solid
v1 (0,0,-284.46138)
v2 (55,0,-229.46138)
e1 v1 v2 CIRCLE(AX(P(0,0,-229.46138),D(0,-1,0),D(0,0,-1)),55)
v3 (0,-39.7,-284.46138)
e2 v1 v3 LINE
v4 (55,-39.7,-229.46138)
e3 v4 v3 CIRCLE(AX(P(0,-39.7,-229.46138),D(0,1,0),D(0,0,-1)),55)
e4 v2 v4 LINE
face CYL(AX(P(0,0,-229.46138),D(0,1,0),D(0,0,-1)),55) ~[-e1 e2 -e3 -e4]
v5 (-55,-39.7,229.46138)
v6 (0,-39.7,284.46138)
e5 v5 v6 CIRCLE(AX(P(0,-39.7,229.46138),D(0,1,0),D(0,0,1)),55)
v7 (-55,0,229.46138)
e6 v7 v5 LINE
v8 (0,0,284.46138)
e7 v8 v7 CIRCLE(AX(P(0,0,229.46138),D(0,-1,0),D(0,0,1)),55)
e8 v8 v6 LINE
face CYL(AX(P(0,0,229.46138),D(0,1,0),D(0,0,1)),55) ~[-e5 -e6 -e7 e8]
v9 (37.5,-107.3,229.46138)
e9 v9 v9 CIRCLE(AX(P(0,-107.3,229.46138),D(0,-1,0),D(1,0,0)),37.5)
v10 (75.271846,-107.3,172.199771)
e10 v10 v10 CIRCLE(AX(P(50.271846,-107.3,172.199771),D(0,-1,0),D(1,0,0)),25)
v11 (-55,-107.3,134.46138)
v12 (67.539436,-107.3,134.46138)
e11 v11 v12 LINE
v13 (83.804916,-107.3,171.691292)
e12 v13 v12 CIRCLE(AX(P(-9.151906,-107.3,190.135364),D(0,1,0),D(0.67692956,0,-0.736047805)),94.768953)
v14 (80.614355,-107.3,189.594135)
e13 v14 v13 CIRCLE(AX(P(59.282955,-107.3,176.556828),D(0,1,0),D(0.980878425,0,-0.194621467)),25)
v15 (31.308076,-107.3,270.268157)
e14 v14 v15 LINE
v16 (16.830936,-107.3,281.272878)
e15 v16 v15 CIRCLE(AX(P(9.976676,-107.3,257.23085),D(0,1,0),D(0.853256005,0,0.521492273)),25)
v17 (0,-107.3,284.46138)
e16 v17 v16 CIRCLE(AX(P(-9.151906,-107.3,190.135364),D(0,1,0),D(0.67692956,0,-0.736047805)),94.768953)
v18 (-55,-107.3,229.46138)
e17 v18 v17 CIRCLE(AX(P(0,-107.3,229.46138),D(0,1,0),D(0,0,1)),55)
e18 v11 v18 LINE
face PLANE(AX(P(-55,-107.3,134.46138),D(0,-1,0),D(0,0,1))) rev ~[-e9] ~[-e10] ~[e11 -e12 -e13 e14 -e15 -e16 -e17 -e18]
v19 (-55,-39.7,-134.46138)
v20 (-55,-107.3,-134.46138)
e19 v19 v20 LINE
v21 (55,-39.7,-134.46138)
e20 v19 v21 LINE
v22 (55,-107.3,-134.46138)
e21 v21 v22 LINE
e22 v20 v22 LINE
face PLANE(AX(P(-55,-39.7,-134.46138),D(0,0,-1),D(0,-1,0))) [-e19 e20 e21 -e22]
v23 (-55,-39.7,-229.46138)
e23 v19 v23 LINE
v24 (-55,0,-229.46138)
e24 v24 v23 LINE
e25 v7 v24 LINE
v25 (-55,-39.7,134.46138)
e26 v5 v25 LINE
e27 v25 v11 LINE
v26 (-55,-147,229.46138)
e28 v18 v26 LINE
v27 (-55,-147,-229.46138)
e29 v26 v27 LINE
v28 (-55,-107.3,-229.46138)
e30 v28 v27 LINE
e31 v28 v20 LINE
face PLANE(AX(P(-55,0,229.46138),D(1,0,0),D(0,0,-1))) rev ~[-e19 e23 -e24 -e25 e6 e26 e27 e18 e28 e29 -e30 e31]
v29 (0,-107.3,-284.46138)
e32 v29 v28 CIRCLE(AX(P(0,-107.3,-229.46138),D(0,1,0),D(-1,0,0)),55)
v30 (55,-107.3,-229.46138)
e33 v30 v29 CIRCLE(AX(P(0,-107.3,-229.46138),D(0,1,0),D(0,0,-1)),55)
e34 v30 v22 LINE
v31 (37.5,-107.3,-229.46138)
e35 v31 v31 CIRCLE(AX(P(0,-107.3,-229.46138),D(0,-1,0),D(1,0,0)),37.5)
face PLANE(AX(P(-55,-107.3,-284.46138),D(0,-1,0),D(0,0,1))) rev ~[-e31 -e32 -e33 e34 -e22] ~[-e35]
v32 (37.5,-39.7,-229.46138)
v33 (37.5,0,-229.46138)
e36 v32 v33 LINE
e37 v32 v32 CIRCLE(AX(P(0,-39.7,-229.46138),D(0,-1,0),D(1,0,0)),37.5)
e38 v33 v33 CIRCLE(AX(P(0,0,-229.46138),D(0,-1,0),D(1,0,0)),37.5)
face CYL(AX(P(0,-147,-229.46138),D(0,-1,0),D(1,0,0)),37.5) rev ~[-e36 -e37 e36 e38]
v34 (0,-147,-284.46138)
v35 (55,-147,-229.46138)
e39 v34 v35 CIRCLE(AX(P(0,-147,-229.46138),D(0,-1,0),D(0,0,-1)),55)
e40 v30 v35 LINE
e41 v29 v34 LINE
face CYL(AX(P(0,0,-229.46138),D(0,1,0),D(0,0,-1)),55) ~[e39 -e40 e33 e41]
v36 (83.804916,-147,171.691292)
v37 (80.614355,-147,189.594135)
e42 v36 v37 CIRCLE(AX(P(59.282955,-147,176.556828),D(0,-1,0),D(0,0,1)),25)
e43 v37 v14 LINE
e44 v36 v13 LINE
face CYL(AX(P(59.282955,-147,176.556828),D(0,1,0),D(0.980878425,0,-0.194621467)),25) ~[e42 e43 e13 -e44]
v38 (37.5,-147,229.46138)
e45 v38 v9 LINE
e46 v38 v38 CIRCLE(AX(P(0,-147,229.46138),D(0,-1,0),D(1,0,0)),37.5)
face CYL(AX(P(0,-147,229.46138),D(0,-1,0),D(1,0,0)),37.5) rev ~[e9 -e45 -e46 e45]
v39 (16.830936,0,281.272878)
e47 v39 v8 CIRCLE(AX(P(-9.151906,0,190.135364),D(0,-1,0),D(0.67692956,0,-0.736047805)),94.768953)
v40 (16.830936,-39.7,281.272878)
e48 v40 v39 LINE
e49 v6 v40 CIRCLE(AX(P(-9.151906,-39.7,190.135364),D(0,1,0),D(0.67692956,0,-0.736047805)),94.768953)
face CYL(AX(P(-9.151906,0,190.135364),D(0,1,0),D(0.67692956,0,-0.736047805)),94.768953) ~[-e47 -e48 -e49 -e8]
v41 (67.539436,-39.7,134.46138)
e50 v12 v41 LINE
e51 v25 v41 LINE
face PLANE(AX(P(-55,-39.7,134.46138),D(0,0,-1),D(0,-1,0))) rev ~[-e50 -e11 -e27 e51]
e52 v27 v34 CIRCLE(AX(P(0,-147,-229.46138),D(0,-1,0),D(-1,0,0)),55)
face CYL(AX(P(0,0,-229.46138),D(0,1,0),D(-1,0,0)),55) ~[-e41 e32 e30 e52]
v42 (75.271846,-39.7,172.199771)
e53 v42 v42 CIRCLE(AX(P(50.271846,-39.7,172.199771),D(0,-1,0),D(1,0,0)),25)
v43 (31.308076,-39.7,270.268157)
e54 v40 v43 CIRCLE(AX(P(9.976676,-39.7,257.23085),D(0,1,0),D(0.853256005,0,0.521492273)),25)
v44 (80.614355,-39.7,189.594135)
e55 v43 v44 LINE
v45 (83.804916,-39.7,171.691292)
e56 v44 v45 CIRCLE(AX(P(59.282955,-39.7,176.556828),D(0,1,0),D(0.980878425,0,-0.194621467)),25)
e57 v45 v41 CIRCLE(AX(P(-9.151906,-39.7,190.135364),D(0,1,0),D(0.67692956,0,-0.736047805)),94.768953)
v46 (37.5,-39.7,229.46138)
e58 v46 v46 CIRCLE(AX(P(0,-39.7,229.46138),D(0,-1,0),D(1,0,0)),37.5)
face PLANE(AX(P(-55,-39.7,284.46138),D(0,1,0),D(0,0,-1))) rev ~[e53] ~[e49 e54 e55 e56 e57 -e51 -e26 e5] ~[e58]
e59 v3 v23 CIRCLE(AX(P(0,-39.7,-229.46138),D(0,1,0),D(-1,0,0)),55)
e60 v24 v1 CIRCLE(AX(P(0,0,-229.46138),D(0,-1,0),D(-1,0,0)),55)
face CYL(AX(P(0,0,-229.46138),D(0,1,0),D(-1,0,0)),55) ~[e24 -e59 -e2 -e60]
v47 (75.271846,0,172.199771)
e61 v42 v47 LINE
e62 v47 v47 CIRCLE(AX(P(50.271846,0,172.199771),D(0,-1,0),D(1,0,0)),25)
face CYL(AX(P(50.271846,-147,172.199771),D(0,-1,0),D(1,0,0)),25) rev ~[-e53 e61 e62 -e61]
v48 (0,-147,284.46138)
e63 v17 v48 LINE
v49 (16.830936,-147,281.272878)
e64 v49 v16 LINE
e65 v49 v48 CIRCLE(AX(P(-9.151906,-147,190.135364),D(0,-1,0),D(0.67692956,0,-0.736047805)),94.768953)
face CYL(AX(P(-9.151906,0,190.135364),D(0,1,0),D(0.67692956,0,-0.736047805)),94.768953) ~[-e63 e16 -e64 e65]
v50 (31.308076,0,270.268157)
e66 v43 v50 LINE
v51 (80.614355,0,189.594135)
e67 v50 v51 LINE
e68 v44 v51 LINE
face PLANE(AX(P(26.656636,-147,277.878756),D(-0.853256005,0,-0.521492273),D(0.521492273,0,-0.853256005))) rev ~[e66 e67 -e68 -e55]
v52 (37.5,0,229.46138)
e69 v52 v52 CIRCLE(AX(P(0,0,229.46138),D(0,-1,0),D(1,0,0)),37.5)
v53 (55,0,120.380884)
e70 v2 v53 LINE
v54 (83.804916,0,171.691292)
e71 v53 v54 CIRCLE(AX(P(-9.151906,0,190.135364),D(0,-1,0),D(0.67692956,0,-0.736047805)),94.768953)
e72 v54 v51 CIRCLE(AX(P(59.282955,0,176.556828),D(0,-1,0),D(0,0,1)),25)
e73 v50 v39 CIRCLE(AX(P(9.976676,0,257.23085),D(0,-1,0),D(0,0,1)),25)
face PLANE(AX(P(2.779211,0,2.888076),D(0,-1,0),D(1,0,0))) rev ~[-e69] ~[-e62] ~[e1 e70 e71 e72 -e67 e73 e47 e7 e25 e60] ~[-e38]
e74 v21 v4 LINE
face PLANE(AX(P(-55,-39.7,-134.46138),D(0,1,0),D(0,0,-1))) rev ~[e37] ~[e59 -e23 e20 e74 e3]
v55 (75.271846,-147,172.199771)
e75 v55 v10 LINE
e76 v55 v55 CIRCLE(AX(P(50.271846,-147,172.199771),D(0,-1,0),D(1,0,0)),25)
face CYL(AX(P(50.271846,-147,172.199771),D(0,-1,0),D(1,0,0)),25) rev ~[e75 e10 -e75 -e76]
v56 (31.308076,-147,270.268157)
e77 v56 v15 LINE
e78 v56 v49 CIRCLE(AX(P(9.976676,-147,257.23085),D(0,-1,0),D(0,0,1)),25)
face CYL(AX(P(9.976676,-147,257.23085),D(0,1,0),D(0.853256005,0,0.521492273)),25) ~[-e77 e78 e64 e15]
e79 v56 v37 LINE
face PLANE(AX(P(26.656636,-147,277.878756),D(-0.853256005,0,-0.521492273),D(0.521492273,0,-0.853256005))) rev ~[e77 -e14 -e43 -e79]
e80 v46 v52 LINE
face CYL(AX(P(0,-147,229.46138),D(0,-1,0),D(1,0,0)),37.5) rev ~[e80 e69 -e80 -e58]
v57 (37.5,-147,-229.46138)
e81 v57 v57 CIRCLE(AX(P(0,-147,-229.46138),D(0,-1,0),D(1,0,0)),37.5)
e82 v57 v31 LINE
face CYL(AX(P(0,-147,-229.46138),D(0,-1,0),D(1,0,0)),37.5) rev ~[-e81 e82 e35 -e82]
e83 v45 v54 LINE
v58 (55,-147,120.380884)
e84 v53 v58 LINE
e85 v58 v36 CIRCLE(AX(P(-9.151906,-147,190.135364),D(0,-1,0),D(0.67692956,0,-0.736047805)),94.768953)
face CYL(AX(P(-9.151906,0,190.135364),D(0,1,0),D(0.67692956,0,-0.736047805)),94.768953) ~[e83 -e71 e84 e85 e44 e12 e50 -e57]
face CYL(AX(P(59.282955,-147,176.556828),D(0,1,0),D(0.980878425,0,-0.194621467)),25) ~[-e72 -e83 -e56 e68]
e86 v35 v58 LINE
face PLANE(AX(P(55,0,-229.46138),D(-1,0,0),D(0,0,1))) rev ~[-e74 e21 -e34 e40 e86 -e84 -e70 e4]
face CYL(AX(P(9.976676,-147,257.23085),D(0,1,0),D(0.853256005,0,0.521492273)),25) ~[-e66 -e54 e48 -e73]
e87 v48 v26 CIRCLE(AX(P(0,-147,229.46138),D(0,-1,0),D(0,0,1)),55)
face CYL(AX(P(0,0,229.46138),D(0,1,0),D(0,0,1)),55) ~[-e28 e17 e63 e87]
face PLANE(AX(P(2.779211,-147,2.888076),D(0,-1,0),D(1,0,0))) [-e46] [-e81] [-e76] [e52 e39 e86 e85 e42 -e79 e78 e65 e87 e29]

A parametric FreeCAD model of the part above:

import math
import FreeCAD as App
import Part
import Sketcher
from FreeCAD import Vector
Q = App.Units.Quantity


def edges_at(feature, points):
    """Names of the edges that pass closest to the given points."""
    edges = feature.Shape.Edges
    near = lambda p: min(range(len(edges)), key=lambda i: edges[i].distToShape(Part.Vertex(*p))[0])
    return sorted({f"Edge{near(p) + 1}" for p in points})


def add_polygon(sketch, points):
    """Adds a closed chain of lines whose ends are joined by coincident constraints."""
    first, n = sketch.GeometryCount, len(points)
    for a, b in zip(points, points[1:] + points[:1]):
        sketch.addGeometry(Part.LineSegment(App.Vector(*a, 0), App.Vector(*b, 0)), False)
    for i in range(n):
        sketch.addConstraint(Sketcher.Constraint("Coincident", first + i, 2, first + (i + 1) % n, 1))

doc = App.newDocument("Part")
body = doc.addObject("PartDesign::Body", "Body")

sketch1 = doc.addObject("Sketcher::SketchObject", "Sketch")
body.addObject(sketch1)
sketch1.AttachmentSupport = (doc.XZ_Plane, [""])
sketch1.MapMode = "FlatFace"
sketch1.addGeometry([
    Part.LineSegment(Vector(55, -229, 0), Vector(55, 120, 0)),
    Part.ArcOfCircle(Part.Circle(Vector(-9, 190, 0), Vector(0, 0, 1), 95), math.radians(-47), math.radians(84)),
    Part.ArcOfCircle(Part.Circle(Vector(0, 229, 0), Vector(0, 0, 1), 55), math.radians(90), math.radians(180)),
    Part.LineSegment(Vector(-55, 229, 0), Vector(-55, -229, 0)),
    Part.ArcOfCircle(Part.Circle(Vector(0, -229, 0), Vector(0, 0, 1), 55), math.radians(180), math.radians(270)),
    Part.ArcOfCircle(Part.Circle(Vector(0, -229, 0), Vector(0, 0, 1), 55), math.radians(-90), math.radians(0)),
], False)
sketch1.addConstraint([
    Sketcher.Constraint("Coincident", 0, 2, 1, 1),
    Sketcher.Constraint("Coincident", 1, 2, 2, 1),
    Sketcher.Constraint("Tangent", 2, 2, 3, 1),
    Sketcher.Constraint("Tangent", 3, 2, 4, 1),
    Sketcher.Constraint("Tangent", 4, 2, 5, 1),
    Sketcher.Constraint("Tangent", 5, 2, 0, 1),
    Sketcher.Constraint("Vertical", 0),
    Sketcher.Constraint("Vertical", 3),
    Sketcher.Constraint("Equal", 2, 4),
    Sketcher.Constraint("Equal", 4, 5),
    Sketcher.Constraint("Symmetric", 2, 3, 4, 3, -1, 1),
    Sketcher.Constraint("PointOnObject", 1, 2, -2),
    Sketcher.Constraint("PointOnObject", 4, 2, -2),
    Sketcher.Constraint("Radius", 2, Q("55 mm")),
    Sketcher.Constraint("Radius", 1, Q("94.768953 mm")),
    Sketcher.Constraint("DistanceY", 3, 2, 3, 1, Q("458.922759 mm")),
    Sketcher.Constraint("DistanceY", 0, 1, 0, 2, Q("349.842264 mm")),
])
pad1 = doc.addObject("PartDesign::Pad", "Pad")
body.addObject(pad1)
pad1.Profile = sketch1
pad1.Length = 147

sketch2 = doc.addObject("Sketcher::SketchObject", "Sketch001")
body.addObject(sketch2)
sketch2.AttachmentSupport = (doc.XZ_Plane, [""])
sketch2.MapMode = "FlatFace"
sketch2.AttachmentOffset = App.Placement(Vector(0, 0, 147), App.Rotation())
sketch2.addGeometry([
    Part.Circle(Vector(0, 229, 0), Vector(0, 0, 1), 38),
    Part.Circle(Vector(0, -229, 0), Vector(0, 0, 1), 38),
    Part.Circle(Vector(50, 172, 0), Vector(0, 0, 1), 25),
], False)
sketch2.addConstraint([
    Sketcher.Constraint("Equal", 0, 1),
    Sketcher.Constraint("Symmetric", 0, 3, 1, 3, -1, 1),
    Sketcher.Constraint("PointOnObject", 0, 3, -2),
    Sketcher.Constraint("Diameter", 0, Q("75 mm")),
    Sketcher.Constraint("Diameter", 2, Q("50 mm")),
    Sketcher.Constraint("DistanceY", -1, 1, 0, 3, Q("229.46138 mm")),
    Sketcher.Constraint("DistanceY", -1, 1, 2, 3, Q("172.199771 mm")),
    Sketcher.Constraint("DistanceX", -1, 1, 2, 3, Q("50.271846 mm")),
])
pocket1 = doc.addObject("PartDesign::Pocket", "Pocket")
body.addObject(pocket1)
pocket1.Profile = sketch2
pocket1.Type = "ThroughAll"

sketch3 = doc.addObject("Sketcher::SketchObject", "Sketch002")
body.addObject(sketch3)
sketch3.AttachmentSupport = (doc.XZ_Plane, [""])
sketch3.MapMode = "FlatFace"
sketch3.AttachmentOffset = App.Placement(Vector(0, 0, 147), App.Rotation())
sketch3.addGeometry([
    Part.ArcOfCircle(Part.Circle(Vector(-9, 190, 0), Vector(0, 0, 1), 95), math.radians(-5), math.radians(68)),
    Part.LineSegment(Vector(27, 278, 0), Vector(85, 182, 0)),
], False)
sketch3.addConstraint([
    Sketcher.Constraint("Coincident", 0, 1, 1, 2),
    Sketcher.Constraint("Coincident", 1, 1, 0, 2),
    Sketcher.Constraint("Radius", 0, Q("94.768953 mm")),
    Sketcher.Constraint("DistanceX", 0, 3, 0, 1, Q("94.417701 mm")),
    Sketcher.Constraint("DistanceX", 1, 1, 0, 1, Q("58.609159 mm")),
    Sketcher.Constraint("DistanceX", 0, 3, -1, 1, Q("9.151906 mm")),
    Sketcher.Constraint("DistanceY", -1, 1, 0, 3, Q("190.135364 mm")),
])
pocket2 = doc.addObject("PartDesign::Pocket", "Pocket001")
body.addObject(pocket2)
pocket2.Profile = sketch3
pocket2.Type = "ThroughAll"
doc.recompute()

fillet = doc.addObject("PartDesign::Fillet", "Fillet")
body.addObject(fillet)
fillet.Base = (pocket2, edges_at(pocket2, [(85.266, -73.5, 181.984), (26.657, -73.5, 277.879)]))
fillet.Radius = 25

sketch4 = doc.addObject("Sketcher::SketchObject", "Sketch003")
body.addObject(sketch4)
sketch4.AttachmentSupport = (doc.YZ_Plane, [""])
sketch4.MapMode = "FlatFace"
sketch4.AttachmentOffset = App.Placement(Vector(0, 0, -55), App.Rotation())
add_polygon(sketch4, [(-40, -134), (-40, -284), (-107, -284), (-107, -134)])
add_polygon(sketch4, [(-40, 134), (-107, 134), (-107, 284), (-40, 284)])
sketch4.addConstraint([
    Sketcher.Constraint("Vertical", 0),
    Sketcher.Constraint("Horizontal", 1),
    Sketcher.Constraint("Vertical", 2),
    Sketcher.Constraint("Horizontal", 3),
    Sketcher.Constraint("Horizontal", 4),
    Sketcher.Constraint("Vertical", 5),
    Sketcher.Constraint("Horizontal", 6),
    Sketcher.Constraint("Vertical", 7),
    Sketcher.Constraint("Symmetric", 2, 2, 4, 2, -1),
    Sketcher.Constraint("Symmetric", 0, 2, 6, 2, -1),
    Sketcher.Constraint("DistanceY", 0, 2, 0, 1, Q("150 mm")),
    Sketcher.Constraint("DistanceX", 1, 2, 1, 1, Q("67.6 mm")),
    Sketcher.Constraint("DistanceX", 0, 2, -1, 1, Q("39.7 mm")),
    Sketcher.Constraint("DistanceY", 0, 2, -1, 1, Q("284.46138 mm")),
])
pocket3 = doc.addObject("PartDesign::Pocket", "Pocket002")
body.addObject(pocket3)
pocket3.Profile = sketch4
pocket3.Type = "ThroughAll"
pocket3.Reversed = True

doc.recompute()
